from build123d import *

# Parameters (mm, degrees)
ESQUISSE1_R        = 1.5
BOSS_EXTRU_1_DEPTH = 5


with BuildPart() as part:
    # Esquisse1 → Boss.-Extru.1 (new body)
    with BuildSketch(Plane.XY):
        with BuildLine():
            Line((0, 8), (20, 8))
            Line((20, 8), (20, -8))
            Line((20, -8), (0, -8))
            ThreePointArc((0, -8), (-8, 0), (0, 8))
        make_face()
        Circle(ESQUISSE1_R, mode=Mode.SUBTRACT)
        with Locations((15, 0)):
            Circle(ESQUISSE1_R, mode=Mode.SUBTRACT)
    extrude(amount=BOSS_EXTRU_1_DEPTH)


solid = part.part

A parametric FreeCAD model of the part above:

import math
import FreeCAD as App
import Part
import Sketcher
Q = App.Units.Quantity

doc = App.newDocument("Part")
body = doc.addObject("PartDesign::Body", "Body")

# Sketch on XY plane
sketch1 = doc.addObject("Sketcher::SketchObject", "Sketch")
body.addObject(sketch1)
sketch1.AttachmentSupport = (doc.XY_Plane, [""])
sketch1.MapMode = "FlatFace"
sketch1.addGeometry(Part.LineSegment(App.Vector(20, 8, 0), App.Vector(0, 8, 0)), False)
sketch1.addGeometry(Part.ArcOfCircle(Part.Circle(App.Vector(0, 0, 0), App.Vector(0, 0, 1), 8), math.radians(90), math.radians(270)), False)
sketch1.addGeometry(Part.LineSegment(App.Vector(0, -8, 0), App.Vector(20, -8, 0)), False)
sketch1.addGeometry(Part.LineSegment(App.Vector(20, -8, 0), App.Vector(20, 8, 0)), False)
sketch1.addGeometry(Part.Circle(App.Vector(15, 0, 0), App.Vector(0, 0, 1), 1.5), False)
sketch1.addGeometry(Part.Circle(App.Vector(0, 0, 0), App.Vector(0, 0, 1), 1.5), False)
sketch1.addConstraint(Sketcher.Constraint("Tangent", 0, 2, 1, 1))
sketch1.addConstraint(Sketcher.Constraint("Tangent", 1, 2, 2, 1))
sketch1.addConstraint(Sketcher.Constraint("Coincident", 2, 2, 3, 1))
sketch1.addConstraint(Sketcher.Constraint("Coincident", 3, 2, 0, 1))
sketch1.addConstraint(Sketcher.Constraint("Horizontal", 0))
sketch1.addConstraint(Sketcher.Constraint("Horizontal", 2))
sketch1.addConstraint(Sketcher.Constraint("Vertical", 3))
sketch1.addConstraint(Sketcher.Constraint("Coincident", 1, 3, -1, 1))
sketch1.addConstraint(Sketcher.Constraint("Coincident", 5, 3, -1, 1))
sketch1.addConstraint(Sketcher.Constraint("Equal", 4, 5))
sketch1.addConstraint(Sketcher.Constraint("PointOnObject", 4, 3, -1))
sketch1.addConstraint(Sketcher.Constraint("Diameter", 4, Q("3 mm")))
sketch1.addConstraint(Sketcher.Constraint("Radius", 1, Q("8 mm")))
sketch1.addConstraint(Sketcher.Constraint("DistanceX", 0, 2, 0, 1, Q("20 mm")))
sketch1.addConstraint(Sketcher.Constraint("DistanceX", -1, 1, 4, 3, Q("15 mm")))
pad1 = doc.addObject("PartDesign::Pad", "Pad")
body.addObject(pad1)
pad1.Profile = sketch1
pad1.Length = 5

doc.recompute()
